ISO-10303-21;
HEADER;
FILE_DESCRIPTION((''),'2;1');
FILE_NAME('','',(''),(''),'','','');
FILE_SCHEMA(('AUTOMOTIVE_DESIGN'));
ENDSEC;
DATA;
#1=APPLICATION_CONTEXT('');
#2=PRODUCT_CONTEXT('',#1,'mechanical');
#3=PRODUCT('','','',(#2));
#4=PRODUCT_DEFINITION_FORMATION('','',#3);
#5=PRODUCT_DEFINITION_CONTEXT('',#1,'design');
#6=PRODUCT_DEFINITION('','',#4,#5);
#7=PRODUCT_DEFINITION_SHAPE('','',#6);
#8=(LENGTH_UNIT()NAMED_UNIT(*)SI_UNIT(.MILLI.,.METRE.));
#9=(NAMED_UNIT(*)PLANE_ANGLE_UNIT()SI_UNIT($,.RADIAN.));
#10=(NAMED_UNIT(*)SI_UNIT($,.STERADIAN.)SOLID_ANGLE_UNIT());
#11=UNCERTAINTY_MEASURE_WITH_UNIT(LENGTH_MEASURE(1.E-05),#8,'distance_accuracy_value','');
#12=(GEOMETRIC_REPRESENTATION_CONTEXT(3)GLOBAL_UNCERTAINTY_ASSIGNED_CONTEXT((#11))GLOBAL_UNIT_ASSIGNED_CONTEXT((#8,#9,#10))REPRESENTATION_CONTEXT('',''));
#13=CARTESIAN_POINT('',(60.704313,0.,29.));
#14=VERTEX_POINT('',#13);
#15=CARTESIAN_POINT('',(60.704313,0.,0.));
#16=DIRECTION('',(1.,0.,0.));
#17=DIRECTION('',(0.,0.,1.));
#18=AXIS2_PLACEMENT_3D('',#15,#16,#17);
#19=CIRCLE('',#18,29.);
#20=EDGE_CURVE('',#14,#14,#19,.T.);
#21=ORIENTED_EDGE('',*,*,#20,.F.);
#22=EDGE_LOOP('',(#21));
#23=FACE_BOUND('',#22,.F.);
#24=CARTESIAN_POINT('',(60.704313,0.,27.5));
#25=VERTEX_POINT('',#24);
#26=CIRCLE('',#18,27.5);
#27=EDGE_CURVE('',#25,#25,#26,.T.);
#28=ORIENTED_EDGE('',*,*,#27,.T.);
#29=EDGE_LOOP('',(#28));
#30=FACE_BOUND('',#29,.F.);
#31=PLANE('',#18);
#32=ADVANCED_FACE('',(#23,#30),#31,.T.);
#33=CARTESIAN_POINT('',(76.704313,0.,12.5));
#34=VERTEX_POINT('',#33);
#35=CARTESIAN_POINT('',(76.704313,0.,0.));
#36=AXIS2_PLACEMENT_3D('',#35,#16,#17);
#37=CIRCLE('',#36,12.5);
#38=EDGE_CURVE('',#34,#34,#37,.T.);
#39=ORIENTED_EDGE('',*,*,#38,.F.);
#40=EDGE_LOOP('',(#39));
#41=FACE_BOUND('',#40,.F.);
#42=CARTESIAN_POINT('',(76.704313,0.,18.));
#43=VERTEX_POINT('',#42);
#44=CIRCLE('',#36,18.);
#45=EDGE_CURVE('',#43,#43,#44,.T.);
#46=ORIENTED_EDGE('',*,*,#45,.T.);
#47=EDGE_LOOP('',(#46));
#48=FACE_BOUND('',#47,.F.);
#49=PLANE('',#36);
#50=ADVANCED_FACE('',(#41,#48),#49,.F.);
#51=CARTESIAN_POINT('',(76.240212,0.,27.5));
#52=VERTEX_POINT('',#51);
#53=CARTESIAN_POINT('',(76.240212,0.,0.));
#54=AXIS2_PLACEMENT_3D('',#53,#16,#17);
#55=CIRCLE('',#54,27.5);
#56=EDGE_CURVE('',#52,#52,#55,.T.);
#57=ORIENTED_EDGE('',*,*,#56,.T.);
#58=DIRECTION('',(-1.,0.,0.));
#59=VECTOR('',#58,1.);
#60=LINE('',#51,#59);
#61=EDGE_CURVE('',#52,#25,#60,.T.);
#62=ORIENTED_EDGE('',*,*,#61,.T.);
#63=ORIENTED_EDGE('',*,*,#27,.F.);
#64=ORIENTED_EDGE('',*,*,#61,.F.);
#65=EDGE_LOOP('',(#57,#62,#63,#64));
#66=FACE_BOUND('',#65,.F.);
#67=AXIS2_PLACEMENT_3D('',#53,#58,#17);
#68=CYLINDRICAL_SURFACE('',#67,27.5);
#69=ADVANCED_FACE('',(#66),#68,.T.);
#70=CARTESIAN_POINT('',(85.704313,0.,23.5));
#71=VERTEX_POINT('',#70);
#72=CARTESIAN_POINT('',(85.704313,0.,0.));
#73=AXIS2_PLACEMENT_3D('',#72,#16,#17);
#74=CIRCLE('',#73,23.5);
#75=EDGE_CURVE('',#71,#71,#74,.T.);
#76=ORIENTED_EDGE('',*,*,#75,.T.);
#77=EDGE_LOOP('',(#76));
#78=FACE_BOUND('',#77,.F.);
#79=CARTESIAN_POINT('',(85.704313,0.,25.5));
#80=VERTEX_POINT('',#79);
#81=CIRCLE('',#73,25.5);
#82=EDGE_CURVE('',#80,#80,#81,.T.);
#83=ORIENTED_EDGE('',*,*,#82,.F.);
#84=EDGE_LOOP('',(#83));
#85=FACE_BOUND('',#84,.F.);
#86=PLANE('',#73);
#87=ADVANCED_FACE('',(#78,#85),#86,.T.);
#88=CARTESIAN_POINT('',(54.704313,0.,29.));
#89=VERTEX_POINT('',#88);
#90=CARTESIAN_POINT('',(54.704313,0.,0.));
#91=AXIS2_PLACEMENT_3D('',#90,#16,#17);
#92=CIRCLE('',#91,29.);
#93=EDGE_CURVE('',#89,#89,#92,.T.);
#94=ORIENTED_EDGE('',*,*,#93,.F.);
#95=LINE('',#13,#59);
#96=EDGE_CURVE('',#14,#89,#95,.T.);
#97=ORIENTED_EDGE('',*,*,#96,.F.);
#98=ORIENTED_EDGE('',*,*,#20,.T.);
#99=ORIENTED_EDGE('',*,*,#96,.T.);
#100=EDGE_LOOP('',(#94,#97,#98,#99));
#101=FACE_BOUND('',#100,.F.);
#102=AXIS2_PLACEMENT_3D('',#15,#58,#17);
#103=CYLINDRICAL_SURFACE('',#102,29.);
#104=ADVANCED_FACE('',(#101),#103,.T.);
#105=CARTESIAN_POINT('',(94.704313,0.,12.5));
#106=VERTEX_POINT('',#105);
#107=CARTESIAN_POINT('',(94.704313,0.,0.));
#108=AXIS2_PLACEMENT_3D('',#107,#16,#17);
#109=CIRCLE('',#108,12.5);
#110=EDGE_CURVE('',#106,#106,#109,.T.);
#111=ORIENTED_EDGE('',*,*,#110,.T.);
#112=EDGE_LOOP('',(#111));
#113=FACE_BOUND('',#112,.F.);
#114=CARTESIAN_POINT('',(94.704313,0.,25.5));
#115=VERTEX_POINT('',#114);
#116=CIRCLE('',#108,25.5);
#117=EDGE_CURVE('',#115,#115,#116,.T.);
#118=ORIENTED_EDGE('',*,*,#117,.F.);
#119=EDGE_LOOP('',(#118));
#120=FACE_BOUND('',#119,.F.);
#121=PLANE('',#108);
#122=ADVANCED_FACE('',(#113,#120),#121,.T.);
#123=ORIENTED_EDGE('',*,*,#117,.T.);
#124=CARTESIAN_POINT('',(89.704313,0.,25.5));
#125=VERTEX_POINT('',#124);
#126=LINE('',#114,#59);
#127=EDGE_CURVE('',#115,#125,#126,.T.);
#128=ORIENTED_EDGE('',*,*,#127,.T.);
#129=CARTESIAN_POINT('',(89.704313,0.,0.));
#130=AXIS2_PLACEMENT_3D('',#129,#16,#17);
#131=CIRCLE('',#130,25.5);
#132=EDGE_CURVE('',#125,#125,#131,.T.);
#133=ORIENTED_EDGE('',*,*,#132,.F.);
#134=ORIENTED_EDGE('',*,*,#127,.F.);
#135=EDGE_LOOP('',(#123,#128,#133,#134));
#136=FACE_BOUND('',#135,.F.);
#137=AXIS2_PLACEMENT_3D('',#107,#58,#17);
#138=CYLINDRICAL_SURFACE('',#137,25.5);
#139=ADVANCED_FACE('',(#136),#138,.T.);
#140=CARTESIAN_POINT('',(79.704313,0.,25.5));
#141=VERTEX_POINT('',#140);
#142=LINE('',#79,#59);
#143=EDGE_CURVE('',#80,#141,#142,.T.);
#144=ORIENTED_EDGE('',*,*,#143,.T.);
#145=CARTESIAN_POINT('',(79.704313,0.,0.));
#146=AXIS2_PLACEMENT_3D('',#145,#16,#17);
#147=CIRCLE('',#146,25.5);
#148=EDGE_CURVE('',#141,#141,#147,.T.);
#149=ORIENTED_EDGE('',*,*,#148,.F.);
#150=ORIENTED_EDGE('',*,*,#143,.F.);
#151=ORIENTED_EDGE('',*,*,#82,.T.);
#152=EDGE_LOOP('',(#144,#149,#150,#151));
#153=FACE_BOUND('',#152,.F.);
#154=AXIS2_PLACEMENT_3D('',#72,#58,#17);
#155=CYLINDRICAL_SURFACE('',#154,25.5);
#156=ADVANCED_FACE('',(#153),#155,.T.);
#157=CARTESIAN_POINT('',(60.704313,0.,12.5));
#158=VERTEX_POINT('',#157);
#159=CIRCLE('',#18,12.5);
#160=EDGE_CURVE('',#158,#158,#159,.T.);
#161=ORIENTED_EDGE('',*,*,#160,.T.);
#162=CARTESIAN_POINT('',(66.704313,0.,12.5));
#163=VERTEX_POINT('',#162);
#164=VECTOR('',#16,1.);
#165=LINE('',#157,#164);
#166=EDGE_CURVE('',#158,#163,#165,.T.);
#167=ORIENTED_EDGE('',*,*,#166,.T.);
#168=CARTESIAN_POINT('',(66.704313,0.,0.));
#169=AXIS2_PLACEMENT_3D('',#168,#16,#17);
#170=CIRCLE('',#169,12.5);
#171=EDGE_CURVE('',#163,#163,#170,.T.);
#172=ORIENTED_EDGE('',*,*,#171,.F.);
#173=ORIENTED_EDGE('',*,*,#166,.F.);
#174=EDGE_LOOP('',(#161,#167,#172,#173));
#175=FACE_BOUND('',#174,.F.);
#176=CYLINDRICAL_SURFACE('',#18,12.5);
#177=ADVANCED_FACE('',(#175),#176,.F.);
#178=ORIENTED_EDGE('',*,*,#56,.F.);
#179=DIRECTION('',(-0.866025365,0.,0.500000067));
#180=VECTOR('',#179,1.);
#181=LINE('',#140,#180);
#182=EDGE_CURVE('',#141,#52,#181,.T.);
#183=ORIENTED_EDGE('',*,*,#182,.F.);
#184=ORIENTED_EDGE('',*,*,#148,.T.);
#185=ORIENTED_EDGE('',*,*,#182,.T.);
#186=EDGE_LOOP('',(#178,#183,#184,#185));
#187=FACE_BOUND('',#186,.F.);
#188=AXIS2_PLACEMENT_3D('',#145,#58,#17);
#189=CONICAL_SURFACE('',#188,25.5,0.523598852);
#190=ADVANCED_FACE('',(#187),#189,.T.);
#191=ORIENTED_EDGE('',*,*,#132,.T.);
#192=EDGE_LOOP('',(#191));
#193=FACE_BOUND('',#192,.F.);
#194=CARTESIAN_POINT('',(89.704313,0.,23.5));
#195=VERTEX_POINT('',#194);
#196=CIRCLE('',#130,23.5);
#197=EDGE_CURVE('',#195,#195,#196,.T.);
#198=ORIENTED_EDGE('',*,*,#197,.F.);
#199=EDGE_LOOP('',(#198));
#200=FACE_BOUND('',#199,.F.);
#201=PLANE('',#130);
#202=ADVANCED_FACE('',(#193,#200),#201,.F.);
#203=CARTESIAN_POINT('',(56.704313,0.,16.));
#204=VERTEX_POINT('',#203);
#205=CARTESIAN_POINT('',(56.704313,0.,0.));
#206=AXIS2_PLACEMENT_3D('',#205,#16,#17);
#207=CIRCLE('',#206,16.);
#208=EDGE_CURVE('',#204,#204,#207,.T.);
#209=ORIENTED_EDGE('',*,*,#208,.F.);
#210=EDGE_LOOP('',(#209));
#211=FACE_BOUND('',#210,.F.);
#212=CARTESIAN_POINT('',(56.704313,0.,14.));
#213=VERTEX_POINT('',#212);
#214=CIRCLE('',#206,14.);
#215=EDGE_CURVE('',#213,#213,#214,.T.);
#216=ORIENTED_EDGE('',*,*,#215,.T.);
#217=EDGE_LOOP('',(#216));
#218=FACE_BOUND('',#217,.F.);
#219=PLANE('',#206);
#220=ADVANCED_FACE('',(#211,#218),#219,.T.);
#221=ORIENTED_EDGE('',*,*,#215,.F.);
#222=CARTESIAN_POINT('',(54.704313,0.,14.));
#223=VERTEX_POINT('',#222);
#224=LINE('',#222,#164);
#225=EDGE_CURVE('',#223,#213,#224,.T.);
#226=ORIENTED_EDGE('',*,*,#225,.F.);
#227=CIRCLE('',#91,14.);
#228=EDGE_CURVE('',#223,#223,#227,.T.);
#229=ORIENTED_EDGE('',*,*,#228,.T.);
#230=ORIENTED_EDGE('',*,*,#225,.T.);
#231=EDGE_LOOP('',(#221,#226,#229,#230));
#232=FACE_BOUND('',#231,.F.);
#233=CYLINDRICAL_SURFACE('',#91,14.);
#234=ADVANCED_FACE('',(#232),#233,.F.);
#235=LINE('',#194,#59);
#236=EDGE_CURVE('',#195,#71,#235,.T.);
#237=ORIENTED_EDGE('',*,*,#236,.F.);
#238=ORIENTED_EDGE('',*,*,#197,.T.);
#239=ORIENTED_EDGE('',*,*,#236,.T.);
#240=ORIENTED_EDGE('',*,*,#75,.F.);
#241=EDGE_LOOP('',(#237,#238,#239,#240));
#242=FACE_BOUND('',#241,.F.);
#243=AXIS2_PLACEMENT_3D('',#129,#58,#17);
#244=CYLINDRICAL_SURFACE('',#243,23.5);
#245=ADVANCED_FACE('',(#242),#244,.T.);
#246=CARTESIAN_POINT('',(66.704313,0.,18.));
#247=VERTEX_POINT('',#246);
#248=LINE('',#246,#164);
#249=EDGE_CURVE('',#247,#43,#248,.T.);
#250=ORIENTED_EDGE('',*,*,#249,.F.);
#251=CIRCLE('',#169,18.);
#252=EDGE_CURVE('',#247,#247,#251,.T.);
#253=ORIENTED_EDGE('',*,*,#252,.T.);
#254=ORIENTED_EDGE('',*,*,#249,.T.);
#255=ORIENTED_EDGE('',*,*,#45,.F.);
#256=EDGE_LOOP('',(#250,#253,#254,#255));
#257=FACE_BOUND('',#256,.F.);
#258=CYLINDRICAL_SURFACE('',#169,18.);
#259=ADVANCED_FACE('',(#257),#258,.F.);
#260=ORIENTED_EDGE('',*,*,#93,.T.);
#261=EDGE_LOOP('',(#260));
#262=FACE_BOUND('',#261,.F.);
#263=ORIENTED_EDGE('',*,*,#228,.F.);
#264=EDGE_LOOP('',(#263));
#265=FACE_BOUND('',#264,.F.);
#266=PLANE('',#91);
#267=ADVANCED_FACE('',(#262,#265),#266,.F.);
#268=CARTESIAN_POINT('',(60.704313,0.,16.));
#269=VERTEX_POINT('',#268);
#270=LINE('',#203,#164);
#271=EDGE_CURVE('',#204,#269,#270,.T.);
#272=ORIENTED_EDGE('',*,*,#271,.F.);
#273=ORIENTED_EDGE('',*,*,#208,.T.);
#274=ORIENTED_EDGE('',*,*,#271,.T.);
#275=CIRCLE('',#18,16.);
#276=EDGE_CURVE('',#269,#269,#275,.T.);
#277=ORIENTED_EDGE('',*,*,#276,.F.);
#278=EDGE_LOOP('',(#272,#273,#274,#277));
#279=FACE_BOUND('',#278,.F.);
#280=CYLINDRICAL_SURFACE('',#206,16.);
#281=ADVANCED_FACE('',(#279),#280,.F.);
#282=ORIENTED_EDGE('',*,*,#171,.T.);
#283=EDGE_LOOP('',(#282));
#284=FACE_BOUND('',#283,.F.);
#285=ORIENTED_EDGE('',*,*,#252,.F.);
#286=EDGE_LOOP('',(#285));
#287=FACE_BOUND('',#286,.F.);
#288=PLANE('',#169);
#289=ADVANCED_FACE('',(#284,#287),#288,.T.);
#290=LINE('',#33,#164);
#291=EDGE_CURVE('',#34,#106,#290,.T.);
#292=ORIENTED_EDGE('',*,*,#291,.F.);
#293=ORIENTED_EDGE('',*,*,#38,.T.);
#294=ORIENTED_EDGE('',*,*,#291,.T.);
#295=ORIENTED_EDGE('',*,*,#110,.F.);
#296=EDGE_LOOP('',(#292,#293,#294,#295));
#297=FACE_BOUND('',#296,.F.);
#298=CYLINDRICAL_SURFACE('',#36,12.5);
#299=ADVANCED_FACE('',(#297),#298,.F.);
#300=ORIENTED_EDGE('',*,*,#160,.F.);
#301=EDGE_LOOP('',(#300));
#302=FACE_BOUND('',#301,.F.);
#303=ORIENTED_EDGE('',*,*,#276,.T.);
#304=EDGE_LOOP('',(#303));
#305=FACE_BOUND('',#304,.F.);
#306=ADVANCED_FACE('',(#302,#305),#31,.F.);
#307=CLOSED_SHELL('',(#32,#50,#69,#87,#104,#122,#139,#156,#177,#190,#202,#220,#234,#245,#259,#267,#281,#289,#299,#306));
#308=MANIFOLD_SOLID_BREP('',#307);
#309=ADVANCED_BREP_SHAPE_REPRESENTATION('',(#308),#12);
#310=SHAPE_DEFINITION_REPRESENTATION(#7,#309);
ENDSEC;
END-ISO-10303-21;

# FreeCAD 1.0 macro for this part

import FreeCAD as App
import Part
import Sketcher

V = App.Vector
Q = App.Units.Quantity


def add_polygon(sketch, points):
    """Adds a closed chain of lines whose ends are joined by coincident constraints."""
    first, n = sketch.GeometryCount, len(points)
    for a, b in zip(points, points[1:] + points[:1]):
        sketch.addGeometry(Part.LineSegment(App.Vector(*a, 0), App.Vector(*b, 0)), False)
    for i in range(n):
        sketch.addConstraint(Sketcher.Constraint("Coincident", first + i, 2, first + (i + 1) % n, 1))

doc = App.newDocument("Part")
body = doc.addObject("PartDesign::Body", "Body")

sketch1 = body.newObject("Sketcher::SketchObject", "Sketch")
sketch1.AttachmentSupport = (doc.getObject("XZ_Plane"), [""])
sketch1.MapMode = "FlatFace"
add_polygon(sketch1, [(54.7, 29), (54.7, 14), (56.7, 14), (56.7, 16), (60.7, 16), (60.7, 12.5), (66.7, 12.5), (66.7, 18), (76.7, 18), (76.7, 12.5), (94.7, 12.5), (94.7, 25.5), (89.7, 25.5), (89.7, 23.5), (85.7, 23.5), (85.7, 25.5), (79.7, 25.5), (76.2, 27.5), (60.7, 27.5), (60.7, 29)])
sketch1.addConstraint(Sketcher.Constraint("Vertical", 0))
sketch1.addConstraint(Sketcher.Constraint("Horizontal", 1))
sketch1.addConstraint(Sketcher.Constraint("Vertical", 2))
sketch1.addConstraint(Sketcher.Constraint("Horizontal", 3))
sketch1.addConstraint(Sketcher.Constraint("Vertical", 4))
sketch1.addConstraint(Sketcher.Constraint("Horizontal", 5))
sketch1.addConstraint(Sketcher.Constraint("Vertical", 6))
sketch1.addConstraint(Sketcher.Constraint("Horizontal", 7))
sketch1.addConstraint(Sketcher.Constraint("Vertical", 8))
sketch1.addConstraint(Sketcher.Constraint("Horizontal", 9))
sketch1.addConstraint(Sketcher.Constraint("Vertical", 10))
sketch1.addConstraint(Sketcher.Constraint("Horizontal", 11))
sketch1.addConstraint(Sketcher.Constraint("Vertical", 12))
sketch1.addConstraint(Sketcher.Constraint("Horizontal", 13))
sketch1.addConstraint(Sketcher.Constraint("Vertical", 14))
sketch1.addConstraint(Sketcher.Constraint("Horizontal", 15))
sketch1.addConstraint(Sketcher.Constraint("Horizontal", 17))
sketch1.addConstraint(Sketcher.Constraint("Vertical", 18))
sketch1.addConstraint(Sketcher.Constraint("Horizontal", 19))
sketch1.addConstraint(Sketcher.Constraint("Horizontal", 5, 2, 8, 2))
sketch1.addConstraint(Sketcher.Constraint("Horizontal", 11, 2, 14, 2))
sketch1.addConstraint(Sketcher.Constraint("Vertical", 4, 2, 17, 2))
sketch1.addConstraint(Sketcher.Constraint("Equal", 3, 13))
sketch1.addConstraint(Sketcher.Constraint("Equal", 5, 15))
sketch1.addConstraint(Sketcher.Constraint("Equal", 15, 19))
sketch1.addConstraint(Sketcher.Constraint("Equal", 1, 2))
sketch1.addConstraint(Sketcher.Constraint("Equal", 2, 12))
sketch1.addConstraint(Sketcher.Constraint("DistanceX", 1, 1, 1, 2, 2.0))
sketch1.addConstraint(Sketcher.Constraint("DistanceX", 3, 1, 3, 2, 4.0))
sketch1.addConstraint(Sketcher.Constraint("DistanceX", 7, 1, 7, 2, 10.0))
sketch1.addConstraint(Sketcher.Constraint("DistanceX", 9, 1, 9, 2, 18.0))
sketch1.addConstraint(Sketcher.Constraint("DistanceX", 11, 2, 11, 1, 5.0))
sketch1.addConstraint(Sketcher.Constraint("DistanceY", 0, 2, 0, 1, 15.0))
sketch1.addConstraint(Sketcher.Constraint("DistanceY", 10, 1, 10, 2, 13.0))
sketch1.addConstraint(Sketcher.Constraint("Angle", 16, Q("149.999996 deg")))
sketch1.addConstraint(Sketcher.Constraint("Distance", 16, 3.999999))
sketch1.addConstraint(Sketcher.Constraint("DistanceY", 4, 2, 4, 1, 3.5))
sketch1.addConstraint(Sketcher.Constraint("DistanceY", 6, 1, 6, 2, 5.5))
sketch1.addConstraint(Sketcher.Constraint("DistanceY", -1, 1, 0, 2, 14.0))
sketch1.addConstraint(Sketcher.Constraint("DistanceX", -1, 1, 16, 2, 76.240212))
revolution = body.newObject("PartDesign::Revolution", "Revolution")
revolution.Profile = sketch1
revolution.ReferenceAxis = (sketch1, ["H_Axis"])
revolution.Angle = 360

doc.recompute()
